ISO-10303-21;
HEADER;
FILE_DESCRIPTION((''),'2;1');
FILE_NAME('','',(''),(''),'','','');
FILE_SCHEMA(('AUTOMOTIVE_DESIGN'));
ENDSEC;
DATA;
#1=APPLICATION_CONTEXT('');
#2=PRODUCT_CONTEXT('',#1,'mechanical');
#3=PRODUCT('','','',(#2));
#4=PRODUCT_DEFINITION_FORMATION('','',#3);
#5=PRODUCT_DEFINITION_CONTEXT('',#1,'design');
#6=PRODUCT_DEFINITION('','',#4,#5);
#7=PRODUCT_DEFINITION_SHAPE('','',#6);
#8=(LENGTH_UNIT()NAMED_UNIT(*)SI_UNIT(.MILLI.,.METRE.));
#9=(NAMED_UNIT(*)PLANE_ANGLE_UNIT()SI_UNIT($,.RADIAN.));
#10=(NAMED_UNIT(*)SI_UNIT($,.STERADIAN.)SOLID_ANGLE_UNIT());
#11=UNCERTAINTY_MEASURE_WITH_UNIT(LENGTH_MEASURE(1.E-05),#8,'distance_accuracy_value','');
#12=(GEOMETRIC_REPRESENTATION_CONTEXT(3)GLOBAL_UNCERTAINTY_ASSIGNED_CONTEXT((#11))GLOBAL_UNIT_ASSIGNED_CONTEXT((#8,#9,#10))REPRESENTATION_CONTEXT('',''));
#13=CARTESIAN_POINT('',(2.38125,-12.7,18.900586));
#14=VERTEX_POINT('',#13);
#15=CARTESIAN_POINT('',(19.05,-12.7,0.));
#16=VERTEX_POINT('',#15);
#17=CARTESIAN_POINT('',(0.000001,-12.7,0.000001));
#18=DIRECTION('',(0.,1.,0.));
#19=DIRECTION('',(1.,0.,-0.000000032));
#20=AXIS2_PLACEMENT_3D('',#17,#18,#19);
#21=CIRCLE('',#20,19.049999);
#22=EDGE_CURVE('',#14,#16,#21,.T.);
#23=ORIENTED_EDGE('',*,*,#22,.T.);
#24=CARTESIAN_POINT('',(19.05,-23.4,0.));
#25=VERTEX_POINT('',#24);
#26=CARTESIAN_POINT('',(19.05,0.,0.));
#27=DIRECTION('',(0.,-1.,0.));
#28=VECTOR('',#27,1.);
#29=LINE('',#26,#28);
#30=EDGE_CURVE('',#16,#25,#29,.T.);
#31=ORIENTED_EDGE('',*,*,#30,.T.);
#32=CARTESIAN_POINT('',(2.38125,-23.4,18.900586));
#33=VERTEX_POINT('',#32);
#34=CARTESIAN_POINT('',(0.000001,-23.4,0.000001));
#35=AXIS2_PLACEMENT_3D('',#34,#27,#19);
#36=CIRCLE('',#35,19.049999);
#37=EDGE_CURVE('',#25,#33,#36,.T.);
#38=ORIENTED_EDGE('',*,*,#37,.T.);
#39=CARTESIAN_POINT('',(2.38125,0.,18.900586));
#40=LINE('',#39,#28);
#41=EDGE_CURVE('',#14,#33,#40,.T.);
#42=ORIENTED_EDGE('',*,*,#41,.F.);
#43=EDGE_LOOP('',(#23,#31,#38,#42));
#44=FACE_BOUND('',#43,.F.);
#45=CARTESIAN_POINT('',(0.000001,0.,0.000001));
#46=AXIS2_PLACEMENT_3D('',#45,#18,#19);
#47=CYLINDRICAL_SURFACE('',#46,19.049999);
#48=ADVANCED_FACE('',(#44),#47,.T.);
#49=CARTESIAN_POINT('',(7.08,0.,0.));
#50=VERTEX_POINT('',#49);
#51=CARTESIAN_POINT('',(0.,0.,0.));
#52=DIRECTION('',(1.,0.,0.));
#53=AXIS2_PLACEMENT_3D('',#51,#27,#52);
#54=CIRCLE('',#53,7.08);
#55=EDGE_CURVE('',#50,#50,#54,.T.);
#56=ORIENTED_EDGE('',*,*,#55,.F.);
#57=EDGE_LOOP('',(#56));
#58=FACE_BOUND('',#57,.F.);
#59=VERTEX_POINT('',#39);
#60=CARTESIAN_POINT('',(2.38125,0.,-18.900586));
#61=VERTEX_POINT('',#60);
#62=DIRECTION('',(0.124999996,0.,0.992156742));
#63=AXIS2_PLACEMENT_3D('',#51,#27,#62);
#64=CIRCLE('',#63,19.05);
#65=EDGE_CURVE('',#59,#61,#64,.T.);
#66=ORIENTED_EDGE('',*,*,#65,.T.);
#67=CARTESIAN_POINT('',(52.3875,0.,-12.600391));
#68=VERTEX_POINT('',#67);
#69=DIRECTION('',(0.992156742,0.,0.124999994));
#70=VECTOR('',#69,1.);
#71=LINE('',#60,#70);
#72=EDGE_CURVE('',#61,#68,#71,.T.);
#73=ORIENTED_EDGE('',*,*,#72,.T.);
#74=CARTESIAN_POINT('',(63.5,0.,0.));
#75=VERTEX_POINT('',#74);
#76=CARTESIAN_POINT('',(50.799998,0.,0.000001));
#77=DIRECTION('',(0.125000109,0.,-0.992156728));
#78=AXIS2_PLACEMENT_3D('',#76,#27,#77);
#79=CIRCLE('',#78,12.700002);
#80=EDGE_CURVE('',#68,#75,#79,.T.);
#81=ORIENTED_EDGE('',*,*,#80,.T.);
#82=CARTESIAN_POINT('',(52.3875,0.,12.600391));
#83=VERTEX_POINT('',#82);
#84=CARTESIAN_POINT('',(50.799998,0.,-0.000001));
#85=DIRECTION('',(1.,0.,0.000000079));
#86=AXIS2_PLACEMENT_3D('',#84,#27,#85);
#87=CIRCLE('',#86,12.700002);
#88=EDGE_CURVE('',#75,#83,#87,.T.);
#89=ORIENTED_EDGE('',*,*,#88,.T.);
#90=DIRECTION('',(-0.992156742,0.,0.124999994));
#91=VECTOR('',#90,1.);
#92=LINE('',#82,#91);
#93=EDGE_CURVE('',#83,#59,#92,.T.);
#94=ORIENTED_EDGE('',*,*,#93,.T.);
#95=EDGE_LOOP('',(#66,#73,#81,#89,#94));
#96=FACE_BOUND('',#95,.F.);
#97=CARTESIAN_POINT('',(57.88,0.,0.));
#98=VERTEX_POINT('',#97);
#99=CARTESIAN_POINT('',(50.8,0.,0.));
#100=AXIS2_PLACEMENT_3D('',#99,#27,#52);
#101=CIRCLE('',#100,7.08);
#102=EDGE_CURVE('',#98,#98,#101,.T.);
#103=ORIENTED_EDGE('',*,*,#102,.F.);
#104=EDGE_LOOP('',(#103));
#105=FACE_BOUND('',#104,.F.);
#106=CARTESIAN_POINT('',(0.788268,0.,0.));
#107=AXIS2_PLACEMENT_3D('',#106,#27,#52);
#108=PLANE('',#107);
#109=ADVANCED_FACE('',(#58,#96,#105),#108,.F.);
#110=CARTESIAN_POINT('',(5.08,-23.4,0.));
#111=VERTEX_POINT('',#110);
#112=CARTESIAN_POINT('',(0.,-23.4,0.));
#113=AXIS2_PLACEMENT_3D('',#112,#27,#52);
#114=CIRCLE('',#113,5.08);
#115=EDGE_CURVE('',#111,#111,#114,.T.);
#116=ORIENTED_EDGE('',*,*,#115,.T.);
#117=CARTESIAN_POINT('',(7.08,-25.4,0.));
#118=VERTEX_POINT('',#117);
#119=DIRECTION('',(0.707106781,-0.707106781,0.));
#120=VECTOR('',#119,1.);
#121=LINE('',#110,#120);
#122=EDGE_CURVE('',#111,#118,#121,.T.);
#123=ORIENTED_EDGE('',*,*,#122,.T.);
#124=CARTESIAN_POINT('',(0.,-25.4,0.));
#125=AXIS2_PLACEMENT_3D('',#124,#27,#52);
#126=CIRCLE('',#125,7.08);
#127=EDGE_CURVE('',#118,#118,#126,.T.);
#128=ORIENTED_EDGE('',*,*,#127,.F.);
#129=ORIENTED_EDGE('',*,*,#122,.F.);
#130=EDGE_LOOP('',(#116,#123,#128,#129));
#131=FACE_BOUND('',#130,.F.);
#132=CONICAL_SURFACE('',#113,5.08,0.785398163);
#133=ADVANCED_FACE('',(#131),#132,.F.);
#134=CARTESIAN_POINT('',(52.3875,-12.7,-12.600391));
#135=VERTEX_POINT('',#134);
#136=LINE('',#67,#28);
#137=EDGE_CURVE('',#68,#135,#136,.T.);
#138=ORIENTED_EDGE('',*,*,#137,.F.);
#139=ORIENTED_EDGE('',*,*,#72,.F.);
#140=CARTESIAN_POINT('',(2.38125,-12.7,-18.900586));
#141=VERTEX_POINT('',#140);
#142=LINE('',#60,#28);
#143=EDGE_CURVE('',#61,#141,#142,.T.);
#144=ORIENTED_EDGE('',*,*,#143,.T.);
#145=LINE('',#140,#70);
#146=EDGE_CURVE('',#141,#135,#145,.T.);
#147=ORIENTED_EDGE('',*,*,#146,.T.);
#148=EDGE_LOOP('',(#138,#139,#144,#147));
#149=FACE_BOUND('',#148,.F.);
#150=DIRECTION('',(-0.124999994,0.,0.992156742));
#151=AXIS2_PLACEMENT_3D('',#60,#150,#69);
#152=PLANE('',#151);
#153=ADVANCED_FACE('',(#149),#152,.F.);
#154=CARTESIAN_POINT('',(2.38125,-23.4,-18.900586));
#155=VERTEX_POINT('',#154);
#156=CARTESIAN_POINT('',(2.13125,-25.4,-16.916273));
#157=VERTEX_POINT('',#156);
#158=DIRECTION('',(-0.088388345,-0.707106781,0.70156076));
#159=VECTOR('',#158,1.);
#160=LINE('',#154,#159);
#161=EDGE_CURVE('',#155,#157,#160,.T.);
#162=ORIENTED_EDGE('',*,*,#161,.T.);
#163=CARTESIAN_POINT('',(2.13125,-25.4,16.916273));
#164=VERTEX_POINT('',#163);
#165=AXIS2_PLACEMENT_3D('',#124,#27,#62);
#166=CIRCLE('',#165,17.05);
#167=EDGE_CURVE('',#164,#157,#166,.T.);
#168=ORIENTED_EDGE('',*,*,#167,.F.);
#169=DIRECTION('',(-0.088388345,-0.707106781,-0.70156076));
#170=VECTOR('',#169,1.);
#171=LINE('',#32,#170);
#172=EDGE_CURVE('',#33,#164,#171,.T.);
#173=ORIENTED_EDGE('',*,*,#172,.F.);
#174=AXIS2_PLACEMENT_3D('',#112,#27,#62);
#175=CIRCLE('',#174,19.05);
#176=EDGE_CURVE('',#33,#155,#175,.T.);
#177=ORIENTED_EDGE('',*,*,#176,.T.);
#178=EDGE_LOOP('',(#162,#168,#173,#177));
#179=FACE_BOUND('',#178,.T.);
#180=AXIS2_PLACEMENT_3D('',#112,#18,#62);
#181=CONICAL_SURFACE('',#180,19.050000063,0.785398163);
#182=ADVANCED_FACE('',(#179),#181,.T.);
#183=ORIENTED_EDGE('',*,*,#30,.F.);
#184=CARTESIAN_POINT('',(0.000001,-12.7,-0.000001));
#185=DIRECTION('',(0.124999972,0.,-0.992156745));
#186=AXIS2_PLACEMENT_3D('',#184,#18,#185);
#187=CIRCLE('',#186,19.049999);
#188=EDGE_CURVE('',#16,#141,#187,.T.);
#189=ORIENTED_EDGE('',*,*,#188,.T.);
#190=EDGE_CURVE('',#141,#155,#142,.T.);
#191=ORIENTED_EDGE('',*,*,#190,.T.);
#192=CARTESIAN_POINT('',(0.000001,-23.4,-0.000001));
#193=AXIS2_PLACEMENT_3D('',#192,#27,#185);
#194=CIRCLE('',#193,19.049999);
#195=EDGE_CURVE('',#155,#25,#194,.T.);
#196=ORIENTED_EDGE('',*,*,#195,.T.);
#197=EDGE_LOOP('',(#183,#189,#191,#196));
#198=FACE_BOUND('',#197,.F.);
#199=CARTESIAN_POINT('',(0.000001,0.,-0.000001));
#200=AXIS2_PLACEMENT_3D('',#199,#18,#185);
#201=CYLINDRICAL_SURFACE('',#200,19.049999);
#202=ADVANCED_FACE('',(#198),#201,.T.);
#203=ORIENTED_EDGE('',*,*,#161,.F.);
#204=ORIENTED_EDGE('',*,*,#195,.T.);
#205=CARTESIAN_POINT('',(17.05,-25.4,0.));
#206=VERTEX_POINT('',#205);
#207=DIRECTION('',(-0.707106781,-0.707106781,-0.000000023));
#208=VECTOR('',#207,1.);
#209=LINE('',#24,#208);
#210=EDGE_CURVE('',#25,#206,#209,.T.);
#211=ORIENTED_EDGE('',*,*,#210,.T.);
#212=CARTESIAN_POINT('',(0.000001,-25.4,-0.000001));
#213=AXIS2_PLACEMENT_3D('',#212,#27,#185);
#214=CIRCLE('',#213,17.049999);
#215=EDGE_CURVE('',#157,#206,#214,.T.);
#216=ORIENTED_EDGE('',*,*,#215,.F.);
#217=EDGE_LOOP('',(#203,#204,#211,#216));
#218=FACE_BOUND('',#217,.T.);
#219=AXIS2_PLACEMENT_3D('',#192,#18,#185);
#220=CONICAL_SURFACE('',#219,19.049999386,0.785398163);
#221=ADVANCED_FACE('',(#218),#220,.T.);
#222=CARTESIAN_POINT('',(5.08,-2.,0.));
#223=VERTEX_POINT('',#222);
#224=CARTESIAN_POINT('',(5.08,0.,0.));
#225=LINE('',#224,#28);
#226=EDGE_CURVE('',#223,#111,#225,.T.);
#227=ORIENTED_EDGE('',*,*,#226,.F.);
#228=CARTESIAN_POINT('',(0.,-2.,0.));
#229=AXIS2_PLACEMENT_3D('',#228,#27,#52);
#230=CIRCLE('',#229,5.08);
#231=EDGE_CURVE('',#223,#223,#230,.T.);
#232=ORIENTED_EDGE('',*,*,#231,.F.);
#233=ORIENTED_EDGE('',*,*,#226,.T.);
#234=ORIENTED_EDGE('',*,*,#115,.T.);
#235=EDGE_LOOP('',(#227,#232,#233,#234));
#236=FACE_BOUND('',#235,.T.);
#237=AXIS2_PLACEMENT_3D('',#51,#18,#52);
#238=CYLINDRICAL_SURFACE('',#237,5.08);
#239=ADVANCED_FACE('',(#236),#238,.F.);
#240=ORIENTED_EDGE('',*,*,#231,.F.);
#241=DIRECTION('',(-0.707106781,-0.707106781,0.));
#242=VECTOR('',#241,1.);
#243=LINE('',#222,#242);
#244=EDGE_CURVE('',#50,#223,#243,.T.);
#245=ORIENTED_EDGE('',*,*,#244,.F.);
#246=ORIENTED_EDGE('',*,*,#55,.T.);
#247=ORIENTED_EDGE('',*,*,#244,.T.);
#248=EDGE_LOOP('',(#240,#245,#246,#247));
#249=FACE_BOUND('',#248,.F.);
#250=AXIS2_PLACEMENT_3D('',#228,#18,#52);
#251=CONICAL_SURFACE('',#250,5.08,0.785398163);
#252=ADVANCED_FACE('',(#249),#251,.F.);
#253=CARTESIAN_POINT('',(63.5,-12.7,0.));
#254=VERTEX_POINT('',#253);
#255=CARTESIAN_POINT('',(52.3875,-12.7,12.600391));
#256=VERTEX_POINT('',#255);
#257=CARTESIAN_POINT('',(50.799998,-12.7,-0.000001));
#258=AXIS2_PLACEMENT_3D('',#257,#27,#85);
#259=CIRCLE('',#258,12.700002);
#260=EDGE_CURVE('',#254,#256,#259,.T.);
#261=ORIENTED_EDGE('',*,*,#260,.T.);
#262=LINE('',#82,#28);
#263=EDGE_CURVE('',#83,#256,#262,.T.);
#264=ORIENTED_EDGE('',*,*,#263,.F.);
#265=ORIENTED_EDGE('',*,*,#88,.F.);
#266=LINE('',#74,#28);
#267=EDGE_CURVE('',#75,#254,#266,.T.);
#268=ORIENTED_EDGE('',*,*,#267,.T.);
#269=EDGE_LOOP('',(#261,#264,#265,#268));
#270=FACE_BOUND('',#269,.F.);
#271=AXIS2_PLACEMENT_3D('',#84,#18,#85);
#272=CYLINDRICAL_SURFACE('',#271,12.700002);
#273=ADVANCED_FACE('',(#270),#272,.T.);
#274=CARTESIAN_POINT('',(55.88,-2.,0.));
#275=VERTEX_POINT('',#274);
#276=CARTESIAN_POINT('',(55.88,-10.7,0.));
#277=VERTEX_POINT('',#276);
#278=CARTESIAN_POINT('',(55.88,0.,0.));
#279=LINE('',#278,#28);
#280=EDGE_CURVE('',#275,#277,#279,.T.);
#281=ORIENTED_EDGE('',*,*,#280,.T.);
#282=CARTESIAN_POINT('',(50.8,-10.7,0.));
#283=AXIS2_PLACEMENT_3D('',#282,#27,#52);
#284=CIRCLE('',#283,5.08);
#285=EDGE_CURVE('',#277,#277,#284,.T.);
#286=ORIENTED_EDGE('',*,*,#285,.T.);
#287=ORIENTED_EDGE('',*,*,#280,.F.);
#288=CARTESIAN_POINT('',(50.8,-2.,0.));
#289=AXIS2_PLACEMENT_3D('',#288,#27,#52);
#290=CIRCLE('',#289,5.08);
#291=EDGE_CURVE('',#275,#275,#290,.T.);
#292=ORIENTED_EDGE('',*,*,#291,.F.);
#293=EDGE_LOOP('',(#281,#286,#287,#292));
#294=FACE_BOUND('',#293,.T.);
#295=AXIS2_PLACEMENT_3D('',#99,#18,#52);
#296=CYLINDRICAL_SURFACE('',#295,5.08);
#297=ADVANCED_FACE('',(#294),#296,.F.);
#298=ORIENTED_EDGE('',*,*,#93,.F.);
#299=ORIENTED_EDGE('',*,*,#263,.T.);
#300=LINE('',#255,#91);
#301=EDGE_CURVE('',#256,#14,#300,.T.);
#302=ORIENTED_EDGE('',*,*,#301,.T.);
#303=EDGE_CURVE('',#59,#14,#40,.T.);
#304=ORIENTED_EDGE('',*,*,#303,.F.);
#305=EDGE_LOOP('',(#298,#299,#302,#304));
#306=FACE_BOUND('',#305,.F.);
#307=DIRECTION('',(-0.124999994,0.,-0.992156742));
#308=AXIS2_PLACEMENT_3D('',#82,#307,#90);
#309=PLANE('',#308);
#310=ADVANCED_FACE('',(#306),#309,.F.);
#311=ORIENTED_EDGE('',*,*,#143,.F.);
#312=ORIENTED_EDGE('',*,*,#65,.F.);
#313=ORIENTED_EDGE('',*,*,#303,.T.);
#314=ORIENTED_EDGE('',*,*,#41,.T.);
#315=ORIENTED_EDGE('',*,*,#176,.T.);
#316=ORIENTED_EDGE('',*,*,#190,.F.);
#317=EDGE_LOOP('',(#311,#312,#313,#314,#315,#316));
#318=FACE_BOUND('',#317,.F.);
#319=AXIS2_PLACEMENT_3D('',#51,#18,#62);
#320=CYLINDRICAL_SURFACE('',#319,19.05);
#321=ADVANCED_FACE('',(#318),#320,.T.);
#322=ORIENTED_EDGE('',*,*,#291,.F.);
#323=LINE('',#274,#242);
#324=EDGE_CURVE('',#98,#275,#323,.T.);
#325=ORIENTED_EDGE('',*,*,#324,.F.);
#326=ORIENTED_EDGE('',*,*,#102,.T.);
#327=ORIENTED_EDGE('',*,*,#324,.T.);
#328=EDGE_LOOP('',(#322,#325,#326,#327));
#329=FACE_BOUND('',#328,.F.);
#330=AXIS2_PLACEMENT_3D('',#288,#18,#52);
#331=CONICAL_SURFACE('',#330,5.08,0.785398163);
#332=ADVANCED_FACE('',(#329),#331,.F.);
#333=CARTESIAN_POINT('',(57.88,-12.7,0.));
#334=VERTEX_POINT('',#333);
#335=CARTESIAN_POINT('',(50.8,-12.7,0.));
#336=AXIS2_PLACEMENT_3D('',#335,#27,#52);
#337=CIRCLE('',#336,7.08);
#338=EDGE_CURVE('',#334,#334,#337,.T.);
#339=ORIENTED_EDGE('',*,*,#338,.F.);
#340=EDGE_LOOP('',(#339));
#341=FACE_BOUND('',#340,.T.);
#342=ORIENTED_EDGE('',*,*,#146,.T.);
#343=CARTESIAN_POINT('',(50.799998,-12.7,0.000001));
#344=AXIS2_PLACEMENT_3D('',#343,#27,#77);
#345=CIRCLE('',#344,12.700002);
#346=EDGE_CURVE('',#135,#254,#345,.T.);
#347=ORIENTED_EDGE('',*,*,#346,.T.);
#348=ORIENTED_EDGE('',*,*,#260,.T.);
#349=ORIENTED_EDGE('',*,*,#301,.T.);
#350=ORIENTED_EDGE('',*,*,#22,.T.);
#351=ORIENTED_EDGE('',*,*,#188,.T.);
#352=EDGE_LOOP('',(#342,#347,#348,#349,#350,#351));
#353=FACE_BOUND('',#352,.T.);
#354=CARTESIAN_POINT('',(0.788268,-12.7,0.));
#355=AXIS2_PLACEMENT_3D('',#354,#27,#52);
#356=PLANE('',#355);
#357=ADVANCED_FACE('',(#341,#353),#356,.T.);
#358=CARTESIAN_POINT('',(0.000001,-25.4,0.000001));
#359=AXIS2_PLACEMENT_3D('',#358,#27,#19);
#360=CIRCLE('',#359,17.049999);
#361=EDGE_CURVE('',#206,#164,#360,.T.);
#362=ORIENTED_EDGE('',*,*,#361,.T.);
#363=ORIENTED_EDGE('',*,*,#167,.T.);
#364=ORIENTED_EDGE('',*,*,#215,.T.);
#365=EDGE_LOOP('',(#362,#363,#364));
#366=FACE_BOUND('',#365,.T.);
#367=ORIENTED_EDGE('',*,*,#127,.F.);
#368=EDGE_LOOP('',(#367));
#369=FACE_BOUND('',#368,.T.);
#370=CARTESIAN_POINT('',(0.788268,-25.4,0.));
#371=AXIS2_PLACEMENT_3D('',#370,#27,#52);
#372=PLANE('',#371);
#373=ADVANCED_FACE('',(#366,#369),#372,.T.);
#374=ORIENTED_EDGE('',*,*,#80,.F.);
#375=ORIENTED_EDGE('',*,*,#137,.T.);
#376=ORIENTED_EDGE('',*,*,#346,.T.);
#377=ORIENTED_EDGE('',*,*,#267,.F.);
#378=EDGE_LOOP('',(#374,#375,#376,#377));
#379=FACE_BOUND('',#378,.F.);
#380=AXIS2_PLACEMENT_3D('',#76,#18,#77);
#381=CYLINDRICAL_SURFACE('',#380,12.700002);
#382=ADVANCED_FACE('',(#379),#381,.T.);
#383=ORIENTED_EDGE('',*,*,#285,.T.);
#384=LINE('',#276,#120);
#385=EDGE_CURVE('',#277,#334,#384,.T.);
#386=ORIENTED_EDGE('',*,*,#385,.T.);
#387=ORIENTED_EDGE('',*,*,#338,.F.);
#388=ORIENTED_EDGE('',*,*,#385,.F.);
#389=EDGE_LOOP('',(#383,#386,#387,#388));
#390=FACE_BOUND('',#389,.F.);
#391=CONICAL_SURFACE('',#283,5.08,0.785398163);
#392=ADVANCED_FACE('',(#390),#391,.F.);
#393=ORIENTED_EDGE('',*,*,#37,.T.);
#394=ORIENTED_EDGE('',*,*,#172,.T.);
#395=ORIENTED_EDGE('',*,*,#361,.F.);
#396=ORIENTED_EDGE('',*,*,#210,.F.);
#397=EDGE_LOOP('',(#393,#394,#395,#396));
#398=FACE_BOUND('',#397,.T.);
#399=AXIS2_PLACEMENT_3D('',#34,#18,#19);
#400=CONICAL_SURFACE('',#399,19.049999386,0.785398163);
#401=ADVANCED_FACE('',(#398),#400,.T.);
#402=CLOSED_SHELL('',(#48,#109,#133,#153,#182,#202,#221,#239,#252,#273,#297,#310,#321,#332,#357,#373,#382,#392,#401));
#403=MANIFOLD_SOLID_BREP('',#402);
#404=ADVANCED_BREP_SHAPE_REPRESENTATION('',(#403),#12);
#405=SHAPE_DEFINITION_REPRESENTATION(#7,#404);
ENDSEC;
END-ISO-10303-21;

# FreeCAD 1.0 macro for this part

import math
import FreeCAD as App
import Part
import Sketcher
Q = App.Units.Quantity


def edges_at(feature, points):
    """Names of the edges that pass closest to the given points."""
    edges = feature.Shape.Edges
    near = lambda p: min(range(len(edges)), key=lambda i: edges[i].distToShape(Part.Vertex(*p))[0])
    return sorted({f"Edge{near(p) + 1}" for p in points})

doc = App.newDocument("Part")
body = doc.addObject("PartDesign::Body", "Body")

# Sketch on XZ plane
sketch1 = doc.addObject("Sketcher::SketchObject", "Sketch")
body.addObject(sketch1)
sketch1.AttachmentSupport = (doc.XZ_Plane, [""])
sketch1.MapMode = "FlatFace"
sketch1.addGeometry([
    Part.ArcOfCircle(Part.Circle(App.Vector(0, 0, 0), App.Vector(0, 0, 1), 19), math.radians(83), math.radians(277)),  # 0
    Part.LineSegment(App.Vector(2, -19, 0), App.Vector(52, -13, 0)),  # 1
    Part.ArcOfCircle(Part.Circle(App.Vector(51, 0, 0), App.Vector(0, 0, 1), 13), math.radians(-83), math.radians(0)),  # 2
    Part.ArcOfCircle(Part.Circle(App.Vector(51, 0, 0), App.Vector(0, 0, 1), 13), math.radians(0), math.radians(83)),  # 3
    Part.LineSegment(App.Vector(52, 13, 0), App.Vector(2, 19, 0)),  # 4
    Part.Circle(App.Vector(0, 0, 0), App.Vector(0, 0, 1), 5),  # 5
    Part.Circle(App.Vector(51, 0, 0), App.Vector(0, 0, 1), 5),  # 6
], False)
sketch1.addConstraint([
    Sketcher.Constraint("Tangent", 0, 2, 1, 1),
    Sketcher.Constraint("Tangent", 1, 2, 2, 1),
    Sketcher.Constraint("Tangent", 2, 2, 3, 1),
    Sketcher.Constraint("Tangent", 3, 2, 4, 1),
    Sketcher.Constraint("Tangent", 4, 2, 0, 1),
    Sketcher.Constraint("Coincident", 0, 3, -1, 1),
    Sketcher.Constraint("Coincident", 5, 3, -1, 1),
    Sketcher.Constraint("Coincident", 6, 3, 2, 3),
    Sketcher.Constraint("Equal", 2, 3),
    Sketcher.Constraint("Equal", 5, 6),
    Sketcher.Constraint("PointOnObject", 2, 3, -1),
    Sketcher.Constraint("PointOnObject", 2, 2, -1),
    Sketcher.Constraint("Diameter", 5, Q("0.4 in")),
    Sketcher.Constraint("Radius", 2, Q("0.5000001 in")),
    Sketcher.Constraint("Radius", 0, Q("0.75 in")),
    Sketcher.Constraint("DistanceX", -1, 1, 2, 3, Q("1.9999999 in")),
])
pad1 = doc.addObject("PartDesign::Pad", "Pad")
body.addObject(pad1)
pad1.Profile = sketch1
pad1.Length = Q("0.5 in")

# Sketch on XZ plane
sketch2 = doc.addObject("Sketcher::SketchObject", "Sketch001")
body.addObject(sketch2)
sketch2.AttachmentSupport = (doc.XZ_Plane, [""])
sketch2.MapMode = "FlatFace"
sketch2.addGeometry([
    Part.ArcOfCircle(Part.Circle(App.Vector(0, 0, 0), App.Vector(0, 0, 1), 19), math.radians(-83), math.radians(0)),
    Part.ArcOfCircle(Part.Circle(App.Vector(0, 0, 0), App.Vector(0, 0, 1), 19), math.radians(0), math.radians(83)),
    Part.ArcOfCircle(Part.Circle(App.Vector(0, 0, 0), App.Vector(0, 0, 1), 19), math.radians(83), math.radians(277)),
    Part.Circle(App.Vector(0, 0, 0), App.Vector(0, 0, 1), 5),
], False)
sketch2.addConstraint([
    Sketcher.Constraint("Tangent", 0, 2, 1, 1),
    Sketcher.Constraint("Tangent", 1, 2, 2, 1),
    Sketcher.Constraint("Tangent", 2, 2, 0, 1),
    Sketcher.Constraint("Coincident", 0, 3, -1, 1),
    Sketcher.Constraint("Coincident", 3, 3, -1, 1),
    Sketcher.Constraint("PointOnObject", 0, 2, -1),
    Sketcher.Constraint("Vertical", 1, 2, 2, 2),
    Sketcher.Constraint("Diameter", 3, Q("0.4 in")),
    Sketcher.Constraint("Radius", 0, Q("0.75 in")),
    Sketcher.Constraint("DistanceX", -1, 1, 1, 2, Q("0.09375 in")),
])
pad2 = doc.addObject("PartDesign::Pad", "Pad001")
body.addObject(pad2)
pad2.Profile = sketch2
pad2.Length = Q("1 in")
doc.recompute()

chamfer = doc.addObject("PartDesign::Chamfer", "Chamfer")
body.addObject(chamfer)
chamfer.Base = (pad2, edges_at(pad2, [
    (-5.08, -25.4, 0),
    (-19.05, -25.4, 0),
    (45.72, -12.7, 0),
    (-5.08, 0, 0),
    (45.72, 0, 0),
]))
chamfer.Size = 2

doc.recompute()
